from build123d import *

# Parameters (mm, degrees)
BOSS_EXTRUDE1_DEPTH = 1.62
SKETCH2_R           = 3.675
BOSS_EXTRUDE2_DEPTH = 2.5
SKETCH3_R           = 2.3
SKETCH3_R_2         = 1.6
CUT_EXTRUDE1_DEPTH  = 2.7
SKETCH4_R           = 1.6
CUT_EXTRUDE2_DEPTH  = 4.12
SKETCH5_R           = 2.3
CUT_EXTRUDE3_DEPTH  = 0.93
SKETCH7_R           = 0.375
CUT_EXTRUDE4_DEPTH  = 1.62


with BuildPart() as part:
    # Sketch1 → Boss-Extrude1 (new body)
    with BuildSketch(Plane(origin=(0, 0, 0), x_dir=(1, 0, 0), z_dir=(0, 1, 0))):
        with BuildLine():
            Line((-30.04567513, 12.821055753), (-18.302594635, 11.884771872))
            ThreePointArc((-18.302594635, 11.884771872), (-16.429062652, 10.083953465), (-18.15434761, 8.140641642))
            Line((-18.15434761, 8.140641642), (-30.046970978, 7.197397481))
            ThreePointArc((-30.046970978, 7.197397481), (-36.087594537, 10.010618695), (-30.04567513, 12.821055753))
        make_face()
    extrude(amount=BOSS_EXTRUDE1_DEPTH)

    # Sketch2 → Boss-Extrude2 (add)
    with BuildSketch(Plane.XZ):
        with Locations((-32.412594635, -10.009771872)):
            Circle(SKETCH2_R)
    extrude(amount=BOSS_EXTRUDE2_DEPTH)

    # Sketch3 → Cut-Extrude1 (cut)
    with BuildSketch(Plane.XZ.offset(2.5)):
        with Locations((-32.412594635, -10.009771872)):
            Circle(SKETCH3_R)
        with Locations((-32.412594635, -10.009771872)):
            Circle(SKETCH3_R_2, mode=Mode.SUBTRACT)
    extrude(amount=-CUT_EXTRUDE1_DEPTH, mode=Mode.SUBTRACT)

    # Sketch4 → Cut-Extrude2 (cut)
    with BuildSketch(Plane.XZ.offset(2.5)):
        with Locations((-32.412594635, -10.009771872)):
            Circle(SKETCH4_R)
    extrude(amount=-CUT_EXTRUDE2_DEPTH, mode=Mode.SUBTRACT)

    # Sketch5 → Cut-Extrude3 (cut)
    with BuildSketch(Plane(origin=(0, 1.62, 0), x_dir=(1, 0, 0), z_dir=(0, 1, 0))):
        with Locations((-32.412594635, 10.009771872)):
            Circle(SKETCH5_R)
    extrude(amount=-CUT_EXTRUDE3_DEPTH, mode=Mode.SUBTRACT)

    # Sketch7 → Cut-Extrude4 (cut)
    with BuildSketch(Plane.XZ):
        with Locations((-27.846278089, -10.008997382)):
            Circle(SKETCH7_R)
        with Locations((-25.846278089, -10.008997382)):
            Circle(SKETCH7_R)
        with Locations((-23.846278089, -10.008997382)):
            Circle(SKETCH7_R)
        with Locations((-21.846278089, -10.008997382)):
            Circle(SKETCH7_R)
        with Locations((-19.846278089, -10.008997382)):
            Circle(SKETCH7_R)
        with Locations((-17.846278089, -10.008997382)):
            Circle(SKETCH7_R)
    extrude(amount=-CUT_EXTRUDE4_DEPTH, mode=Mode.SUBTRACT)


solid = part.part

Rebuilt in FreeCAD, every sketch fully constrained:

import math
import FreeCAD as App
import Part
import Sketcher

V = App.Vector

doc = App.newDocument("Part")
body = doc.addObject("PartDesign::Body", "Body")

# Sketch on XZ plane
sketch1 = doc.addObject("Sketcher::SketchObject", "Sketch")
body.addObject(sketch1)
sketch1.AttachmentSupport = (doc.XZ_Plane, [""])
sketch1.MapMode = "FlatFace"
sketch1.addGeometry(Part.LineSegment(V(-18.3, -11.9, 0), V(-30, -12.8, 0)), False)
sketch1.addGeometry(Part.ArcOfCircle(Part.Circle(V(-32.4, -10, 0), V(0, 0, 1), 3.7), math.radians(50), math.radians(310)), False)
sketch1.addGeometry(Part.LineSegment(V(-30, -7.2, 0), V(-18.2, -8.1, 0)), False)
sketch1.addGeometry(Part.ArcOfCircle(Part.Circle(V(-18.3, -10, 0), V(0, 0, 1), 1.9), math.radians(-90), math.radians(85)), False)
sketch1.addConstraint(Sketcher.Constraint("Coincident", 0, 2, 1, 2))
sketch1.addConstraint(Sketcher.Constraint("Coincident", 1, 1, 2, 1))
sketch1.addConstraint(Sketcher.Constraint("Tangent", 2, 2, 3, 2))
sketch1.addConstraint(Sketcher.Constraint("Coincident", 3, 1, 0, 1))
sketch1.addConstraint(Sketcher.Constraint("Horizontal", 1, 3, 3, 3))
sketch1.addConstraint(Sketcher.Constraint("Radius", 1, 3.675))
sketch1.addConstraint(Sketcher.Constraint("Radius", 3, 1.875))
sketch1.addConstraint(Sketcher.Constraint("DistanceX", 1, 3, 3, 3, 14.11))
sketch1.addConstraint(Sketcher.Constraint("DistanceX", 1, 3, 3, 1, 14.11))
sketch1.addConstraint(Sketcher.Constraint("Distance", 2, 11.929971))
sketch1.addConstraint(Sketcher.Constraint("DistanceY", 1, 3, -1, 1, 10.009772))
sketch1.addConstraint(Sketcher.Constraint("DistanceX", 1, 1, -1, 1, 30.046971))
sketch1.addConstraint(Sketcher.Constraint("DistanceX", 1, 3, 0, 2, 2.36692))
pad1 = doc.addObject("PartDesign::Pad", "Pad")
body.addObject(pad1)
pad1.Profile = sketch1
pad1.Length = 1.62
pad1.Reversed = True

# Sketch on XZ plane
sketch2 = doc.addObject("Sketcher::SketchObject", "Sketch001")
body.addObject(sketch2)
sketch2.AttachmentSupport = (doc.XZ_Plane, [""])
sketch2.MapMode = "FlatFace"
sketch2.addGeometry(Part.Circle(V(-32.4, -10, 0), V(0, 0, 1), 3.7), False)
sketch2.addConstraint(Sketcher.Constraint("Diameter", 0, 7.35))
sketch2.addConstraint(Sketcher.Constraint("DistanceY", 0, 3, -1, 1, 10.009772))
sketch2.addConstraint(Sketcher.Constraint("DistanceX", 0, 3, -1, 1, 32.412595))
pad2 = doc.addObject("PartDesign::Pad", "Pad001")
body.addObject(pad2)
pad2.Profile = sketch2
pad2.Length = 2.5

# Sketch on XZ plane
sketch3 = doc.addObject("Sketcher::SketchObject", "Sketch002")
body.addObject(sketch3)
sketch3.AttachmentSupport = (doc.XZ_Plane, [""])
sketch3.MapMode = "FlatFace"
sketch3.AttachmentOffset = App.Placement(V(0, 0, 2.5), App.Rotation())
sketch3.addGeometry(Part.Circle(V(-32.4, -10, 0), V(0, 0, 1), 2.3), False)
sketch3.addGeometry(Part.Circle(V(-32.4, -10, 0), V(0, 0, 1), 1.6), False)
sketch3.addConstraint(Sketcher.Constraint("Coincident", 1, 3, 0, 3))
sketch3.addConstraint(Sketcher.Constraint("Diameter", 0, 4.6))
sketch3.addConstraint(Sketcher.Constraint("Diameter", 1, 3.2))
sketch3.addConstraint(Sketcher.Constraint("DistanceY", 0, 3, -1, 1, 10.009772))
sketch3.addConstraint(Sketcher.Constraint("DistanceX", 0, 3, -1, 1, 32.412595))
pocket1 = doc.addObject("PartDesign::Pocket", "Pocket")
body.addObject(pocket1)
pocket1.Profile = sketch3
pocket1.Length = 2.7

# Sketch on XZ plane
sketch4 = doc.addObject("Sketcher::SketchObject", "Sketch003")
body.addObject(sketch4)
sketch4.AttachmentSupport = (doc.XZ_Plane, [""])
sketch4.MapMode = "FlatFace"
sketch4.AttachmentOffset = App.Placement(V(0, 0, 2.5), App.Rotation())
sketch4.addGeometry(Part.Circle(V(-32.4, -10, 0), V(0, 0, 1), 1.6), False)
sketch4.addConstraint(Sketcher.Constraint("Diameter", 0, 3.2))
sketch4.addConstraint(Sketcher.Constraint("DistanceY", 0, 3, -1, 1, 10.009772))
sketch4.addConstraint(Sketcher.Constraint("DistanceX", 0, 3, -1, 1, 32.412595))
pocket2 = doc.addObject("PartDesign::Pocket", "Pocket001")
body.addObject(pocket2)
pocket2.Profile = sketch4
pocket2.Length = 4.12

# Sketch on XZ plane
sketch5 = doc.addObject("Sketcher::SketchObject", "Sketch004")
body.addObject(sketch5)
sketch5.AttachmentSupport = (doc.XZ_Plane, [""])
sketch5.MapMode = "FlatFace"
sketch5.AttachmentOffset = App.Placement(V(0, 0, -1.62), App.Rotation())
sketch5.addGeometry(Part.Circle(V(-32.4, -10, 0), V(0, 0, 1), 2.3), False)
sketch5.addConstraint(Sketcher.Constraint("Diameter", 0, 4.6))
sketch5.addConstraint(Sketcher.Constraint("DistanceY", 0, 3, -1, 1, 10.009772))
sketch5.addConstraint(Sketcher.Constraint("DistanceX", 0, 3, -1, 1, 32.412595))
pocket3 = doc.addObject("PartDesign::Pocket", "Pocket002")
body.addObject(pocket3)
pocket3.Profile = sketch5
pocket3.Length = 0.93
pocket3.Reversed = True

# Sketch on XZ plane
sketch6 = doc.addObject("Sketcher::SketchObject", "Sketch005")
body.addObject(sketch6)
sketch6.AttachmentSupport = (doc.XZ_Plane, [""])
sketch6.MapMode = "FlatFace"
sketch6.addGeometry(Part.Circle(V(-27.85, -10.01, 0), V(0, 0, 1), 0.38), False)
sketch6.addGeometry(Part.Circle(V(-25.85, -10.01, 0), V(0, 0, 1), 0.38), False)
sketch6.addGeometry(Part.Circle(V(-23.85, -10.01, 0), V(0, 0, 1), 0.38), False)
sketch6.addGeometry(Part.Circle(V(-21.85, -10.01, 0), V(0, 0, 1), 0.38), False)
sketch6.addGeometry(Part.Circle(V(-19.85, -10.01, 0), V(0, 0, 1), 0.38), False)
sketch6.addGeometry(Part.Circle(V(-17.85, -10.01, 0), V(0, 0, 1), 0.38), False)
sketch6.addConstraint(Sketcher.Constraint("Equal", 0, 1))
sketch6.addConstraint(Sketcher.Constraint("Equal", 1, 2))
sketch6.addConstraint(Sketcher.Constraint("Equal", 2, 3))
sketch6.addConstraint(Sketcher.Constraint("Equal", 3, 4))
sketch6.addConstraint(Sketcher.Constraint("Equal", 4, 5))
sketch6.addConstraint(Sketcher.Constraint("Horizontal", 0, 3, 1, 3))
sketch6.addConstraint(Sketcher.Constraint("Horizontal", 1, 3, 2, 3))
sketch6.addConstraint(Sketcher.Constraint("Horizontal", 2, 3, 3, 3))
sketch6.addConstraint(Sketcher.Constraint("Horizontal", 3, 3, 4, 3))
sketch6.addConstraint(Sketcher.Constraint("Horizontal", 4, 3, 5, 3))
sketch6.addConstraint(Sketcher.Constraint("Diameter", 0, 0.75))
sketch6.addConstraint(Sketcher.Constraint("DistanceX", 0, 3, 1, 3, 2.0))
sketch6.addConstraint(Sketcher.Constraint("DistanceX", 1, 3, 2, 3, 2.0))
sketch6.addConstraint(Sketcher.Constraint("DistanceX", 2, 3, 3, 3, 2.0))
sketch6.addConstraint(Sketcher.Constraint("DistanceX", 3, 3, 4, 3, 2.0))
sketch6.addConstraint(Sketcher.Constraint("DistanceX", 4, 3, 5, 3, 2.0))
sketch6.addConstraint(Sketcher.Constraint("DistanceX", 0, 3, -1, 1, 27.846278))
sketch6.addConstraint(Sketcher.Constraint("DistanceY", 0, 3, -1, 1, 10.008997))
pocket4 = doc.addObject("PartDesign::Pocket", "Pocket003")
body.addObject(pocket4)
pocket4.Profile = sketch6
pocket4.Length = 1.62

doc.recompute()
